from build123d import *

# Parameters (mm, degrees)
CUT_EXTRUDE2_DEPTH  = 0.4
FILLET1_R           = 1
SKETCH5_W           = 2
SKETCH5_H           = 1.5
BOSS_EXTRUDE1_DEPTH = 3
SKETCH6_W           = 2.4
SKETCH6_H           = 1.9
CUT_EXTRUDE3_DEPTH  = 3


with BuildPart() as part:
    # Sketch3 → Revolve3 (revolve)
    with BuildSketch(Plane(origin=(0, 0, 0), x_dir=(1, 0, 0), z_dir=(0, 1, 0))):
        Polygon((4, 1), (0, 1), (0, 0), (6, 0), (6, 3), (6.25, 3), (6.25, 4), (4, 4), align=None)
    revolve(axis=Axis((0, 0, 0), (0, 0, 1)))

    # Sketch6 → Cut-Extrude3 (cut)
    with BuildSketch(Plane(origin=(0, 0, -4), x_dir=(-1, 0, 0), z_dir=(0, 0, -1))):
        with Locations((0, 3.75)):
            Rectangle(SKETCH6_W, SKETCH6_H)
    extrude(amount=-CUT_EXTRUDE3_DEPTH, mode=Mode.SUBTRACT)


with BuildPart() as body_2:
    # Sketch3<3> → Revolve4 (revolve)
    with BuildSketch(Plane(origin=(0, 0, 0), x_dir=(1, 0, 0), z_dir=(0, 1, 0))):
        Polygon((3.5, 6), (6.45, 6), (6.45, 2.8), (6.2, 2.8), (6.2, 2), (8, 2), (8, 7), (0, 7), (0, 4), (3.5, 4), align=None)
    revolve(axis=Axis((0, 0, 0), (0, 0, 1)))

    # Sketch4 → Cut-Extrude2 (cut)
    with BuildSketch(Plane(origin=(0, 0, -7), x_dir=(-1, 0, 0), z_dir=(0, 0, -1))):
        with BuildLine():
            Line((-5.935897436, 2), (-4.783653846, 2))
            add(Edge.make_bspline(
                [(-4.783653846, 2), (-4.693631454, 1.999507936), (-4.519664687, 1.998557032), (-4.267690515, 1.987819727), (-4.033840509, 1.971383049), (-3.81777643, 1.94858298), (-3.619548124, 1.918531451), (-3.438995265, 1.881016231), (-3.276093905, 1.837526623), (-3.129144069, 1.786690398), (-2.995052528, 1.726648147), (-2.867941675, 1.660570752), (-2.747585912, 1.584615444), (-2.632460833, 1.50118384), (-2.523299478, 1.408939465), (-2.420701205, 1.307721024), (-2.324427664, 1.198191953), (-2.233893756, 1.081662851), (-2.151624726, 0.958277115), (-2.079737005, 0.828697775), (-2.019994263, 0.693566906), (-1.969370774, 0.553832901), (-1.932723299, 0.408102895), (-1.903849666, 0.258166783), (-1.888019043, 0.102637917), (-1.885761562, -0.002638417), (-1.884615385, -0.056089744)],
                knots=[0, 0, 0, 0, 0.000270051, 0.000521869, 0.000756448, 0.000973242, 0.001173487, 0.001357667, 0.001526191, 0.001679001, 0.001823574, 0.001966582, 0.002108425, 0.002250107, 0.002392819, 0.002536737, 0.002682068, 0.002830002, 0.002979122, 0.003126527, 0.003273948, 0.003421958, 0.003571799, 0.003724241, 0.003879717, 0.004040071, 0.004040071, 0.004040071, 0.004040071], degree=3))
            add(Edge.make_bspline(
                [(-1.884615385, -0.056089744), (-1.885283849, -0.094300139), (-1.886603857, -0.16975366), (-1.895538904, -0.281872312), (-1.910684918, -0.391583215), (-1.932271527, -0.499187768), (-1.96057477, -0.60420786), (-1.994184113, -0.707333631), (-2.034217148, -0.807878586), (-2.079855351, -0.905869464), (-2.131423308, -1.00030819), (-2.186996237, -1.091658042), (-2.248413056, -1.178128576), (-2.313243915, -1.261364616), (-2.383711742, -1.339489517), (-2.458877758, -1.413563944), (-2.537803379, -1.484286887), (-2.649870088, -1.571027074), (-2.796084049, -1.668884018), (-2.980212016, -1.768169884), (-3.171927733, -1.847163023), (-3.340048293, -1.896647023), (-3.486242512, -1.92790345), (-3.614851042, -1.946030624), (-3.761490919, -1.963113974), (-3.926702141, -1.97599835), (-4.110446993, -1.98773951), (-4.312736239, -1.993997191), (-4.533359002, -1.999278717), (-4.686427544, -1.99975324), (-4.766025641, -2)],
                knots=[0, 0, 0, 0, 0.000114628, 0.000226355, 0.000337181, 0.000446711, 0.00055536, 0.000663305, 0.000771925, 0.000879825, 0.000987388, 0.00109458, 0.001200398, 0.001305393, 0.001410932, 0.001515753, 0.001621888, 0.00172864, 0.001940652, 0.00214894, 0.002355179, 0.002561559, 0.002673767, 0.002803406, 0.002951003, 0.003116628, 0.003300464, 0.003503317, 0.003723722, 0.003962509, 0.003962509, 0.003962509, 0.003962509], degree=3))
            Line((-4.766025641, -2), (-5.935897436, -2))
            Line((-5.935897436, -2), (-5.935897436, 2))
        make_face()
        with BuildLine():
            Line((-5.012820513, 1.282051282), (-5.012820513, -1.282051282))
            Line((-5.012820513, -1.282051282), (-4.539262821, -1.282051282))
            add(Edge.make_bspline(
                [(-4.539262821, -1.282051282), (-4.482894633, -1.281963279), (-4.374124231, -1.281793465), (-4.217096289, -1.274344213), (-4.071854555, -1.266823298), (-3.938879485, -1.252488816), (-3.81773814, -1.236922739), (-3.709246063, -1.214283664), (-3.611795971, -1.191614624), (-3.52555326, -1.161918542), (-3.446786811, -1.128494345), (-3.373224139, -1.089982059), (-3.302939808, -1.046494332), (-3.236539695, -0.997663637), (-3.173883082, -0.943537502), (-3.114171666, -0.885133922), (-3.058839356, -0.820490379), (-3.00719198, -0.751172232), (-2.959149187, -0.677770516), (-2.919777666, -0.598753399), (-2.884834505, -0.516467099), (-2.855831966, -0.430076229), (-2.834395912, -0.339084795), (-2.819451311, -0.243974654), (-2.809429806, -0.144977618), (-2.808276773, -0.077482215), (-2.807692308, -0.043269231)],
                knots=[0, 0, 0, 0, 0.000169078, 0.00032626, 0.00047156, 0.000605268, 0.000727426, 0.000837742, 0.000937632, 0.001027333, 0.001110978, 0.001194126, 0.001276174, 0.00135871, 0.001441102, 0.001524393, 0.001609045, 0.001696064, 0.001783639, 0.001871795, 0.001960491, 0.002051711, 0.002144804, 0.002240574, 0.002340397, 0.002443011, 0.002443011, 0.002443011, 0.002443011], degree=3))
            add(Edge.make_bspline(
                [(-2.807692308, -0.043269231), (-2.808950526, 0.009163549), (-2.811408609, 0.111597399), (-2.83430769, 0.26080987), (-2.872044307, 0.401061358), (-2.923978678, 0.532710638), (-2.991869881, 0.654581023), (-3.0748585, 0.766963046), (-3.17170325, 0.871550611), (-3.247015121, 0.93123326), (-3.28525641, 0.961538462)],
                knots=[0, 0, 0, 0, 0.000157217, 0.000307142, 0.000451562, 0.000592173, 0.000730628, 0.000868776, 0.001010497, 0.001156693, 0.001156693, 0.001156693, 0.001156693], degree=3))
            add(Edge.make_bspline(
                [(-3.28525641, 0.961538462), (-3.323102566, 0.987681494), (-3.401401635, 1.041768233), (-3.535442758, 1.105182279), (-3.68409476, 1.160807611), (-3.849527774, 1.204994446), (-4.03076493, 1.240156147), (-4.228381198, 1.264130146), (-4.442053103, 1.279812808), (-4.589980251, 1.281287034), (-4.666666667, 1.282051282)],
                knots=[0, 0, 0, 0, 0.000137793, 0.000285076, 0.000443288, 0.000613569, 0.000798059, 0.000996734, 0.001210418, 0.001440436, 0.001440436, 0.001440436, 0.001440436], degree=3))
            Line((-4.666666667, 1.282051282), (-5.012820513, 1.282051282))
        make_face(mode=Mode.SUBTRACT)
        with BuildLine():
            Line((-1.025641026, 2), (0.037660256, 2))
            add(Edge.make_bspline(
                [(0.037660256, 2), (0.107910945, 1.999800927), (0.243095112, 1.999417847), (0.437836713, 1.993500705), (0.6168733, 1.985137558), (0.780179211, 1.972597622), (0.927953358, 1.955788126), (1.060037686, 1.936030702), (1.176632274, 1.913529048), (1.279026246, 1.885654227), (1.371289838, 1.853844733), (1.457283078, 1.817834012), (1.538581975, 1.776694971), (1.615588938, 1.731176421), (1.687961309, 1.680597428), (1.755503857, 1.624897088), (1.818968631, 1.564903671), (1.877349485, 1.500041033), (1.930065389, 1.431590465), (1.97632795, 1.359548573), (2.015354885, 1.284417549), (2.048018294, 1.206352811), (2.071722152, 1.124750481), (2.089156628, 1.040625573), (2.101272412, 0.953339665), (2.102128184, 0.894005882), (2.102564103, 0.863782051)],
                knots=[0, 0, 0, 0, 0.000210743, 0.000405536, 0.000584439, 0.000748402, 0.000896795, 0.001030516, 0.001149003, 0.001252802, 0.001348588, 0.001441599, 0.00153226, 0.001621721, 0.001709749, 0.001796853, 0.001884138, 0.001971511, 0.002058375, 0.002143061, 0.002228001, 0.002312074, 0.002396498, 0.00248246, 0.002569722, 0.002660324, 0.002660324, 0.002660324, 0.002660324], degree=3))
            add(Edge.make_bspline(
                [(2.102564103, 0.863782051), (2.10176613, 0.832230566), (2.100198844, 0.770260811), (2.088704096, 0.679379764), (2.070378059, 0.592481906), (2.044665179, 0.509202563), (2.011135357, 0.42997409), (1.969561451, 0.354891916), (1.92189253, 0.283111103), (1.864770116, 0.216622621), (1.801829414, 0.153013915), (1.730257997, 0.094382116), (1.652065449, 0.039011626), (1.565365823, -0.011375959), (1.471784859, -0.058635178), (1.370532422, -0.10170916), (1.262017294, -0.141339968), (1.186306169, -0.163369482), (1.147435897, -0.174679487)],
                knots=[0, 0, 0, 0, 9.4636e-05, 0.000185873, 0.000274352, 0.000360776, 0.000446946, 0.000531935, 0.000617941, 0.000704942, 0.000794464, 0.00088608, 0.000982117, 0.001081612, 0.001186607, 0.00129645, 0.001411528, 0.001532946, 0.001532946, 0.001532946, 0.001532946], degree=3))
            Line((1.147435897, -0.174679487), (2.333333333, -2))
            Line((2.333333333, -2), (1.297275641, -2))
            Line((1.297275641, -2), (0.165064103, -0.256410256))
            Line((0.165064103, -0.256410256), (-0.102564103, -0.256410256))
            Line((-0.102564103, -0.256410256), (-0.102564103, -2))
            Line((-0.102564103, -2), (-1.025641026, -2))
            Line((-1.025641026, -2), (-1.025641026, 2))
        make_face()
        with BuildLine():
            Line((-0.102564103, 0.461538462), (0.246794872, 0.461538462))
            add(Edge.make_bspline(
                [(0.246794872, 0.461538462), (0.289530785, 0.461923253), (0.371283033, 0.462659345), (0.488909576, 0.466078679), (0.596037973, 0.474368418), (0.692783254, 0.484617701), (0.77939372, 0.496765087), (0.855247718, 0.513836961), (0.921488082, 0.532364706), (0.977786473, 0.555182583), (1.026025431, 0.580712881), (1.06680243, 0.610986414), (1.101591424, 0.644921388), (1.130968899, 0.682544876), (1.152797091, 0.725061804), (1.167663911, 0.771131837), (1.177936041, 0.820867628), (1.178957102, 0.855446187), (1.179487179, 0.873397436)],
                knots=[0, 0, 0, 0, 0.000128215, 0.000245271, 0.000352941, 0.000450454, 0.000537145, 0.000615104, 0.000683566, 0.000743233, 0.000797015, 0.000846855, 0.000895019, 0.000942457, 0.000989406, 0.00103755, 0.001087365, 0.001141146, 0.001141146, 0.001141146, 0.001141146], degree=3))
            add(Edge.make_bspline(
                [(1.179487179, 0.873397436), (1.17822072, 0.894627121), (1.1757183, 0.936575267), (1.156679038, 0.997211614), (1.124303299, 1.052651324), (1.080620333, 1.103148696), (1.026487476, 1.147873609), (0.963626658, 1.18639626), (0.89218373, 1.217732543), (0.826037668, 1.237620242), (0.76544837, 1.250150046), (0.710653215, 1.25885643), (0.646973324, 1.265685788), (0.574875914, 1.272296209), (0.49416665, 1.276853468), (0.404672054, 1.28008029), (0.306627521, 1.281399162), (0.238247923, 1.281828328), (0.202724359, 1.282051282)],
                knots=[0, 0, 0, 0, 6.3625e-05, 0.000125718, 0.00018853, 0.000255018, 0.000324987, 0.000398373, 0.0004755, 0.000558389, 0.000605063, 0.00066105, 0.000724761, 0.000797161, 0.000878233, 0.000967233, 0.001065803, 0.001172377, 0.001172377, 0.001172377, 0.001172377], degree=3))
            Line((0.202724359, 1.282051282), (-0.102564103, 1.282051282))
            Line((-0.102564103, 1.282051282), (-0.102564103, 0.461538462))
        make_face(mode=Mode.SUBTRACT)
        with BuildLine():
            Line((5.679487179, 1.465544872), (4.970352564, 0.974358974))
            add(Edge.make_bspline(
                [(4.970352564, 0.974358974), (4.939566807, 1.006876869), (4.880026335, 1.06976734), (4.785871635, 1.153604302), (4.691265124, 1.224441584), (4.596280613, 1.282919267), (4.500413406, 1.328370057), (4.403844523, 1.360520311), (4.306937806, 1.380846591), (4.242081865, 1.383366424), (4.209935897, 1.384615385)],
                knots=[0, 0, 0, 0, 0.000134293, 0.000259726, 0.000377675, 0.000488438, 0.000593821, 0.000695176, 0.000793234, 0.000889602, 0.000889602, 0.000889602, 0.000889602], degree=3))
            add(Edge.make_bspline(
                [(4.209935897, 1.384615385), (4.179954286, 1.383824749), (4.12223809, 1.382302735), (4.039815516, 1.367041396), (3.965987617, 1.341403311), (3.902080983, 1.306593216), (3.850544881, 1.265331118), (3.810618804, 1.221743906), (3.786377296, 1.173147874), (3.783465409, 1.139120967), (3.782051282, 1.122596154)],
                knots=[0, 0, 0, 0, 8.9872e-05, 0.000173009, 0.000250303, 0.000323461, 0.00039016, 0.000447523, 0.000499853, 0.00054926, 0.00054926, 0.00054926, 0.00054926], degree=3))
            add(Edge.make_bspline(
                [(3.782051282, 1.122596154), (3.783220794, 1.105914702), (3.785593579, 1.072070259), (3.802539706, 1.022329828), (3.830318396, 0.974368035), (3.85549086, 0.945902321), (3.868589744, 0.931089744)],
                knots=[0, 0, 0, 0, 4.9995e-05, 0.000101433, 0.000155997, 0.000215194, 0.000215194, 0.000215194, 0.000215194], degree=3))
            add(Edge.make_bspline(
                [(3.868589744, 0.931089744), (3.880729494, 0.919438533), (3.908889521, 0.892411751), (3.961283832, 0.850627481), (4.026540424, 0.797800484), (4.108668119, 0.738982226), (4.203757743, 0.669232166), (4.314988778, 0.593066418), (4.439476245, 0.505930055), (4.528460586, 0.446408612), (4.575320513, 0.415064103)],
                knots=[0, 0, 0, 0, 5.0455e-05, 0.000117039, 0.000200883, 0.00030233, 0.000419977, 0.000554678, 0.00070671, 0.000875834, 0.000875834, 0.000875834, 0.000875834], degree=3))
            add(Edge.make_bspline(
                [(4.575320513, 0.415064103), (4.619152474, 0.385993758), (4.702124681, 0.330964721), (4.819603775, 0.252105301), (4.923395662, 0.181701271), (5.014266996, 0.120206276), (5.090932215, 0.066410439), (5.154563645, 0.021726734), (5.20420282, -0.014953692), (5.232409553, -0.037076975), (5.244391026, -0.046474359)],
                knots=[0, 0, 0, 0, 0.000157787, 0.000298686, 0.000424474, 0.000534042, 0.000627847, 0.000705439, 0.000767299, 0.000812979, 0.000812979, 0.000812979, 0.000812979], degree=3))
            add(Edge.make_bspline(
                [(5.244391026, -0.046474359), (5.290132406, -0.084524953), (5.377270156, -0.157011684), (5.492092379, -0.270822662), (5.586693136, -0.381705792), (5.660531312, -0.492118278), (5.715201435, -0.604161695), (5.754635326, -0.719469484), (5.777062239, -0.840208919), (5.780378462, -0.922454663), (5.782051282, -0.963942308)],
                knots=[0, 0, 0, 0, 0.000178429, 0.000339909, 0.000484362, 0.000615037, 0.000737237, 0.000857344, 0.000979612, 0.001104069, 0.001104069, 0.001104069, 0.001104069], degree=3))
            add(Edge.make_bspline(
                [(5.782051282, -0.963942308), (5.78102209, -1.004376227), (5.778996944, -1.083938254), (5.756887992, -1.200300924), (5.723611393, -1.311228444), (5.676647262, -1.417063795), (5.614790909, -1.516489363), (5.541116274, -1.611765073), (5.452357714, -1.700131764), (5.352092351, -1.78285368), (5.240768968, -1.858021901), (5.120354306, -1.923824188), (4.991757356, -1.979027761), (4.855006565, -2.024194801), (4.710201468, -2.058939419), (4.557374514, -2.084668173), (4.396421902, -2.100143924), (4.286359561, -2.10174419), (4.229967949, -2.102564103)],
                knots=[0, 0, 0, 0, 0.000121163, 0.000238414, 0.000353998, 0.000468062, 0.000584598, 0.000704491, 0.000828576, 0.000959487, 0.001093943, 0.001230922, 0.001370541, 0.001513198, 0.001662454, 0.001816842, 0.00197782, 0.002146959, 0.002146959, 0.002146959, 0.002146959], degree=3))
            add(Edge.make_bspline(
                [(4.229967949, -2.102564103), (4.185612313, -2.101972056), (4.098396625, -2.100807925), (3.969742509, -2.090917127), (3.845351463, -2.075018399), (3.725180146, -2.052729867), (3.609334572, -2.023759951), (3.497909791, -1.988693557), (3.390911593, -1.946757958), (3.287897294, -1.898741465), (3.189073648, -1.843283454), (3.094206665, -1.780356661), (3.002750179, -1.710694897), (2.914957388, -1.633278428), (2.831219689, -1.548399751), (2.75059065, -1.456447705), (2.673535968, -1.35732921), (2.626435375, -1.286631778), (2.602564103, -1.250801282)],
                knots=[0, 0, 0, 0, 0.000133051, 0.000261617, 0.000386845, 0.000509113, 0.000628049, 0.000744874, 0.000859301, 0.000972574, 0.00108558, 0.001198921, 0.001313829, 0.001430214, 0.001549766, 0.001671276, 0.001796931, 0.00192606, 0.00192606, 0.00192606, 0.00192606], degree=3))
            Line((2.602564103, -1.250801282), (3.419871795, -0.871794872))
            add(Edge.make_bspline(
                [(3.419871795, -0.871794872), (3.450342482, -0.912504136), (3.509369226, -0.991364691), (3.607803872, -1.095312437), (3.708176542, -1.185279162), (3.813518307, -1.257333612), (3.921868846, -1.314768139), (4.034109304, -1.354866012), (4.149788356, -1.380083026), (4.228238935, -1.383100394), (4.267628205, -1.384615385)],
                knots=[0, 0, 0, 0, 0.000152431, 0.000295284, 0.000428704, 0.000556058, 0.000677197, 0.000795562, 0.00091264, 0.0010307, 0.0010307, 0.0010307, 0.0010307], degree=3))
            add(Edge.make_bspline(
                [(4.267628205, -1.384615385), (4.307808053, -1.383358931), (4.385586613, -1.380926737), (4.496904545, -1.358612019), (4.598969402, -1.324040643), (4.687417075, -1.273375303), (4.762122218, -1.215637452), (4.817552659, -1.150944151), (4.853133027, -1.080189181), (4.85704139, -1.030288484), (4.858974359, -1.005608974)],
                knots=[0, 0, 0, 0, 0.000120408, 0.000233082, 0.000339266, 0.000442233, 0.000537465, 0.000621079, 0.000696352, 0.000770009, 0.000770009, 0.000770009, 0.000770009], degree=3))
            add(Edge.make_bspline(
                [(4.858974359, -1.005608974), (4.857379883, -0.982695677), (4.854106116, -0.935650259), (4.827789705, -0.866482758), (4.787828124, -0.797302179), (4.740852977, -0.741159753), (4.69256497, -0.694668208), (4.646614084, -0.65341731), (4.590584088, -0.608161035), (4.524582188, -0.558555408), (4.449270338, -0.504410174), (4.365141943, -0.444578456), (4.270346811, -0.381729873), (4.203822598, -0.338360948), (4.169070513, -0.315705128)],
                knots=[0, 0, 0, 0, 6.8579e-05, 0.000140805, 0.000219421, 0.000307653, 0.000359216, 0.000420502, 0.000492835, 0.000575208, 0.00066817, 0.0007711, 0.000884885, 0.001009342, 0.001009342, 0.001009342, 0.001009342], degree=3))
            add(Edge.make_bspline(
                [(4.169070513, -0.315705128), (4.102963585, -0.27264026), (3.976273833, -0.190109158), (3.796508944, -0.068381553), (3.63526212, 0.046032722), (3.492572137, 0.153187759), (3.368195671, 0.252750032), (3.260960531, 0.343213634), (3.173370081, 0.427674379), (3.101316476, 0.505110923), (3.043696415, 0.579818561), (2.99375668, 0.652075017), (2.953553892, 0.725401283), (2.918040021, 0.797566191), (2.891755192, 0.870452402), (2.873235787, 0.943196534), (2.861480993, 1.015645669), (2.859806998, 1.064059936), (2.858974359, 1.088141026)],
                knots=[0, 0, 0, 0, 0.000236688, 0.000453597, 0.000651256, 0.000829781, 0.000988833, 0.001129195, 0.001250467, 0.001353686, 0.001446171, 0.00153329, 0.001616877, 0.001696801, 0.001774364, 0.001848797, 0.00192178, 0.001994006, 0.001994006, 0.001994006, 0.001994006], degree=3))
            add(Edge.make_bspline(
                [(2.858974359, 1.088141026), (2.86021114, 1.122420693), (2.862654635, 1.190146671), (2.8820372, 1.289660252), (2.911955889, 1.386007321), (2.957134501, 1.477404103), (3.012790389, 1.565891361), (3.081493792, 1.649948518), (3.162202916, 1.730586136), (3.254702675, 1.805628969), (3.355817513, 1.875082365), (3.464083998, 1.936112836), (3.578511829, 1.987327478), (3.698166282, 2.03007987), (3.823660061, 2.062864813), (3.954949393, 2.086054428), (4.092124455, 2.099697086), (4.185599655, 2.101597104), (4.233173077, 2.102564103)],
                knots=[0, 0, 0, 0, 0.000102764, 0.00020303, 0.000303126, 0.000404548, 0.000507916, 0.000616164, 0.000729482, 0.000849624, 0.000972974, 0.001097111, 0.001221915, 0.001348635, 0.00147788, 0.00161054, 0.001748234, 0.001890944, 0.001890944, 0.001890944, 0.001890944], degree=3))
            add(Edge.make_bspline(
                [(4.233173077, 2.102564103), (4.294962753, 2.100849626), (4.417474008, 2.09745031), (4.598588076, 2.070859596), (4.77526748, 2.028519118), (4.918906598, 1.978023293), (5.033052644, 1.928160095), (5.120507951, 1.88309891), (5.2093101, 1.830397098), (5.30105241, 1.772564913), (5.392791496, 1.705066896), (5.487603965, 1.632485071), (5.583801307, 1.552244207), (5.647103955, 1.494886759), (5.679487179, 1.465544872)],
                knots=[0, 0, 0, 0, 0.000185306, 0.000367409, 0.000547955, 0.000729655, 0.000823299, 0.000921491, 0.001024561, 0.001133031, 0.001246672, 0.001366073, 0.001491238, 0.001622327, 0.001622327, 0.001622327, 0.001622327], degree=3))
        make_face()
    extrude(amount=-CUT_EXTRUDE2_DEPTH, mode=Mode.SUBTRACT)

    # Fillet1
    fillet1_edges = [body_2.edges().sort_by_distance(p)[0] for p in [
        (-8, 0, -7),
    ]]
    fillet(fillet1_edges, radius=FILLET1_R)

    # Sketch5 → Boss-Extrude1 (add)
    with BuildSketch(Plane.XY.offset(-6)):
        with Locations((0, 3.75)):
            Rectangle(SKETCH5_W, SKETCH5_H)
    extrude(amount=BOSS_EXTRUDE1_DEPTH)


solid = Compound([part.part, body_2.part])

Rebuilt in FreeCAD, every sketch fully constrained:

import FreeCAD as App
import Part
import Sketcher
Q = App.Units.Quantity


def edges_at(feature, points):
    """Names of the edges that pass closest to the given points."""
    edges = feature.Shape.Edges
    near = lambda p: min(range(len(edges)), key=lambda i: edges[i].distToShape(Part.Vertex(*p))[0])
    return sorted({f"Edge{near(p) + 1}" for p in points})


def add_polygon(sketch, points):
    """Adds a closed chain of lines whose ends are joined by coincident constraints."""
    first, n = sketch.GeometryCount, len(points)
    for a, b in zip(points, points[1:] + points[:1]):
        sketch.addGeometry(Part.LineSegment(App.Vector(*a, 0), App.Vector(*b, 0)), False)
    for i in range(n):
        sketch.addConstraint(Sketcher.Constraint("Coincident", first + i, 2, first + (i + 1) % n, 1))

doc = App.newDocument("Part")
body = doc.addObject("PartDesign::Body", "Body")

sketch1 = body.newObject("Sketcher::SketchObject", "Sketch")
sketch1.AttachmentSupport = (doc.getObject("XZ_Plane"), [""])
sketch1.MapMode = "FlatFace"
add_polygon(sketch1, [(4, -1), (0, -1), (0, 0), (6, 0), (6, -3), (6.25, -3), (6.25, -4), (4, -4)])
sketch1.addConstraint([
    Sketcher.Constraint("Horizontal", 0),
    Sketcher.Constraint("Vertical", 1),
    Sketcher.Constraint("Horizontal", 2),
    Sketcher.Constraint("Vertical", 3),
    Sketcher.Constraint("Horizontal", 4),
    Sketcher.Constraint("Vertical", 5),
    Sketcher.Constraint("Horizontal", 6),
    Sketcher.Constraint("Vertical", 7),
    Sketcher.Constraint("Coincident", 1, 2, -1, 1),
    Sketcher.Constraint("Equal", 1, 5),
    Sketcher.Constraint("DistanceX", 0, 2, 0, 1, Q("4 mm")),
    Sketcher.Constraint("DistanceX", 2, 1, 2, 2, Q("6 mm")),
    Sketcher.Constraint("DistanceY", 1, 1, 1, 2, Q("1 mm")),
    Sketcher.Constraint("DistanceY", 3, 2, 3, 1, Q("3 mm")),
    Sketcher.Constraint("DistanceX", 4, 1, 4, 2, Q("0.25 mm")),
])
revolution = body.newObject("PartDesign::Revolution", "Revolution")
revolution.Profile = sketch1
revolution.ReferenceAxis = (sketch1, ["V_Axis"])
revolution.Angle = 360

sketch2 = body.newObject("Sketcher::SketchObject", "Sketch001")
sketch2.AttachmentSupport = (doc.getObject("XY_Plane"), [""])
sketch2.MapMode = "FlatFace"
sketch2.AttachmentOffset = App.Placement(App.Vector(0, 0, -4), App.Rotation())
add_polygon(sketch2, [(1.2, 4.7), (1.2, 2.8), (-1.2, 2.8), (-1.2, 4.7)])
sketch2.addConstraint([
    Sketcher.Constraint("Vertical", 0),
    Sketcher.Constraint("Horizontal", 1),
    Sketcher.Constraint("Vertical", 2),
    Sketcher.Constraint("Horizontal", 3),
    Sketcher.Constraint("DistanceX", 1, 2, 1, 1, Q("2.4 mm")),
    Sketcher.Constraint("DistanceY", 0, 2, 0, 1, Q("1.9 mm")),
    Sketcher.Constraint("DistanceX", -1, 1, 0, 2, Q("1.2 mm")),
    Sketcher.Constraint("DistanceY", -1, 1, 0, 2, Q("2.8 mm")),
])
pocket1 = body.newObject("PartDesign::Pocket", "Pocket")
pocket1.Profile = sketch2
pocket1.Length = 3
pocket1.Reversed = True
body2 = doc.addObject("PartDesign::Body", "Body001")

sketch3 = body2.newObject("Sketcher::SketchObject", "Sketch002")
sketch3.AttachmentSupport = (doc.getObject("XZ_Plane001"), [""])
sketch3.MapMode = "FlatFace"
add_polygon(sketch3, [(3.5, -6), (6.45, -6), (6.45, -2.8), (6.2, -2.8), (6.2, -2), (8, -2), (8, -7), (0, -7), (0, -4), (3.5, -4)])
sketch3.addConstraint([
    Sketcher.Constraint("Horizontal", 0),
    Sketcher.Constraint("Vertical", 1),
    Sketcher.Constraint("Horizontal", 2),
    Sketcher.Constraint("Vertical", 3),
    Sketcher.Constraint("Horizontal", 4),
    Sketcher.Constraint("Vertical", 5),
    Sketcher.Constraint("Horizontal", 6),
    Sketcher.Constraint("Vertical", 7),
    Sketcher.Constraint("Horizontal", 8),
    Sketcher.Constraint("Vertical", 9),
    Sketcher.Constraint("PointOnObject", 6, 2, -2),
    Sketcher.Constraint("DistanceX", 6, 2, 6, 1, Q("8 mm")),
    Sketcher.Constraint("DistanceY", 5, 2, 5, 1, Q("5 mm")),
    Sketcher.Constraint("DistanceY", 7, 1, 7, 2, Q("3 mm")),
    Sketcher.Constraint("DistanceY", 9, 2, 9, 1, Q("2 mm")),
    Sketcher.Constraint("DistanceX", 4, 1, 4, 2, Q("1.8 mm")),
    Sketcher.Constraint("DistanceX", 8, 1, 8, 2, Q("3.5 mm")),
    Sketcher.Constraint("DistanceY", 1, 1, 1, 2, Q("3.2 mm")),
    Sketcher.Constraint("DistanceY", 0, 2, -1, 1, Q("6 mm")),
    Sketcher.Constraint("DistanceX", 0, 1, 0, 2, Q("2.95 mm")),
])
revolution2 = body2.newObject("PartDesign::Revolution", "Revolution001")
revolution2.Profile = sketch3
revolution2.ReferenceAxis = (sketch3, ["V_Axis"])
revolution2.Angle = 360

sketch4 = body2.newObject("Sketcher::SketchObject", "Sketch003")
sketch4.AttachmentSupport = (doc.getObject("XY_Plane001"), [""])
sketch4.MapMode = "FlatFace"
sketch4.AttachmentOffset = App.Placement(App.Vector(0, 0, -7), App.Rotation())
sketch4.addGeometry([
    Part.LineSegment(App.Vector(4.783654, 2, 0), App.Vector(5.935897, 2, 0)),
    Part.LineSegment(App.Vector(5.935897, 2, 0), App.Vector(5.935897, -2, 0)),
    Part.LineSegment(App.Vector(5.935897, -2, 0), App.Vector(4.766026, -2, 0)),
    Part.BSplineCurve([App.Vector(1.884615, -0.05609, 0), App.Vector(1.885284, -0.0943, 0), App.Vector(1.886604, -0.169754, 0), App.Vector(1.895539, -0.281872, 0), App.Vector(1.910685, -0.391583, 0), App.Vector(1.932272, -0.499188, 0), App.Vector(1.960575, -0.604208, 0), App.Vector(1.994184, -0.707334, 0), App.Vector(2.034217, -0.807879, 0), App.Vector(2.079855, -0.905869, 0), App.Vector(2.131423, -1.000308, 0), App.Vector(2.186996, -1.091658, 0), App.Vector(2.248413, -1.178129, 0), App.Vector(2.313244, -1.261365, 0), App.Vector(2.383712, -1.33949, 0), App.Vector(2.458878, -1.413564, 0), App.Vector(2.537803, -1.484287, 0), App.Vector(2.64987, -1.571027, 0), App.Vector(2.796084, -1.668884, 0), App.Vector(2.980212, -1.76817, 0), App.Vector(3.171928, -1.847163, 0), App.Vector(3.340048, -1.896647, 0), App.Vector(3.486243, -1.927903, 0), App.Vector(3.614851, -1.946031, 0), App.Vector(3.761491, -1.963114, 0), App.Vector(3.926702, -1.975998, 0), App.Vector(4.110447, -1.98774, 0), App.Vector(4.312736, -1.993997, 0), App.Vector(4.533359, -1.999279, 0), App.Vector(4.686428, -1.999753, 0), App.Vector(4.766026, -2, 0)], [4, 1, 1, 1, 1, 1, 1, 1, 1, 1, 1, 1, 1, 1, 1, 1, 1, 1, 1, 1, 1, 1, 1, 1, 1, 1, 1, 1, 4], [0, 0.000114628, 0.000226355, 0.000337181, 0.000446711, 0.00055536, 0.000663305, 0.000771925, 0.000879825, 0.000987388, 0.00109458, 0.001200398, 0.001305393, 0.001410932, 0.001515753, 0.001621888, 0.00172864, 0.001940652, 0.00214894, 0.002355179, 0.002561559, 0.002673767, 0.002803406, 0.002951003, 0.003116628, 0.003300464, 0.003503317, 0.003723722, 0.003962509], False, 3, [1, 1, 1, 1, 1, 1, 1, 1, 1, 1, 1, 1, 1, 1, 1, 1, 1, 1, 1, 1, 1, 1, 1, 1, 1, 1, 1, 1, 1, 1, 1], False),
    Part.BSplineCurve([App.Vector(4.783654, 2, 0), App.Vector(4.693631, 1.999508, 0), App.Vector(4.519665, 1.998557, 0), App.Vector(4.267691, 1.98782, 0), App.Vector(4.033841, 1.971383, 0), App.Vector(3.817776, 1.948583, 0), App.Vector(3.619548, 1.918531, 0), App.Vector(3.438995, 1.881016, 0), App.Vector(3.276094, 1.837527, 0), App.Vector(3.129144, 1.78669, 0), App.Vector(2.995053, 1.726648, 0), App.Vector(2.867942, 1.660571, 0), App.Vector(2.747586, 1.584615, 0), App.Vector(2.632461, 1.501184, 0), App.Vector(2.523299, 1.408939, 0), App.Vector(2.420701, 1.307721, 0), App.Vector(2.324428, 1.198192, 0), App.Vector(2.233894, 1.081663, 0), App.Vector(2.151625, 0.958277, 0), App.Vector(2.079737, 0.828698, 0), App.Vector(2.019994, 0.693567, 0), App.Vector(1.969371, 0.553833, 0), App.Vector(1.932723, 0.408103, 0), App.Vector(1.90385, 0.258167, 0), App.Vector(1.888019, 0.102638, 0), App.Vector(1.885762, -0.002638, 0), App.Vector(1.884615, -0.05609, 0)], [4, 1, 1, 1, 1, 1, 1, 1, 1, 1, 1, 1, 1, 1, 1, 1, 1, 1, 1, 1, 1, 1, 1, 1, 4], [0, 0.000270051, 0.000521869, 0.000756448, 0.000973242, 0.001173487, 0.001357667, 0.001526191, 0.001679001, 0.001823574, 0.001966582, 0.002108425, 0.002250107, 0.002392819, 0.002536737, 0.002682068, 0.002830002, 0.002979122, 0.003126527, 0.003273948, 0.003421958, 0.003571799, 0.003724241, 0.003879717, 0.004040071], False, 3, [1, 1, 1, 1, 1, 1, 1, 1, 1, 1, 1, 1, 1, 1, 1, 1, 1, 1, 1, 1, 1, 1, 1, 1, 1, 1, 1], False),
    Part.LineSegment(App.Vector(5.012821, 1.282051, 0), App.Vector(4.666667, 1.282051, 0)),
    Part.BSplineCurve([App.Vector(3.285256, 0.961538, 0), App.Vector(3.323103, 0.987681, 0), App.Vector(3.401402, 1.041768, 0), App.Vector(3.535443, 1.105182, 0), App.Vector(3.684095, 1.160808, 0), App.Vector(3.849528, 1.204994, 0), App.Vector(4.030765, 1.240156, 0), App.Vector(4.228381, 1.26413, 0), App.Vector(4.442053, 1.279813, 0), App.Vector(4.58998, 1.281287, 0), App.Vector(4.666667, 1.282051, 0)], [4, 1, 1, 1, 1, 1, 1, 1, 4], [0, 0.000137793, 0.000285076, 0.000443288, 0.000613569, 0.000798059, 0.000996734, 0.001210418, 0.001440436], False, 3, [1, 1, 1, 1, 1, 1, 1, 1, 1, 1, 1], False),
    Part.BSplineCurve([App.Vector(2.807692, -0.043269, 0), App.Vector(2.808951, 0.009164, 0), App.Vector(2.811409, 0.111597, 0), App.Vector(2.834308, 0.26081, 0), App.Vector(2.872044, 0.401061, 0), App.Vector(2.923979, 0.532711, 0), App.Vector(2.99187, 0.654581, 0), App.Vector(3.074858, 0.766963, 0), App.Vector(3.171703, 0.871551, 0), App.Vector(3.247015, 0.931233, 0), App.Vector(3.285256, 0.961538, 0)], [4, 1, 1, 1, 1, 1, 1, 1, 4], [0, 0.000157217, 0.000307142, 0.000451562, 0.000592173, 0.000730628, 0.000868776, 0.001010497, 0.001156693], False, 3, [1, 1, 1, 1, 1, 1, 1, 1, 1, 1, 1], False),
    Part.BSplineCurve([App.Vector(4.539263, -1.282051, 0), App.Vector(4.482895, -1.281963, 0), App.Vector(4.374124, -1.281793, 0), App.Vector(4.217096, -1.274344, 0), App.Vector(4.071855, -1.266823, 0), App.Vector(3.938879, -1.252489, 0), App.Vector(3.817738, -1.236923, 0), App.Vector(3.709246, -1.214284, 0), App.Vector(3.611796, -1.191615, 0), App.Vector(3.525553, -1.161919, 0), App.Vector(3.446787, -1.128494, 0), App.Vector(3.373224, -1.089982, 0), App.Vector(3.30294, -1.046494, 0), App.Vector(3.23654, -0.997664, 0), App.Vector(3.173883, -0.943538, 0), App.Vector(3.114172, -0.885134, 0), App.Vector(3.058839, -0.82049, 0), App.Vector(3.007192, -0.751172, 0), App.Vector(2.959149, -0.677771, 0), App.Vector(2.919778, -0.598753, 0), App.Vector(2.884835, -0.516467, 0), App.Vector(2.855832, -0.430076, 0), App.Vector(2.834396, -0.339085, 0), App.Vector(2.819451, -0.243975, 0), App.Vector(2.80943, -0.144978, 0), App.Vector(2.808277, -0.077482, 0), App.Vector(2.807692, -0.043269, 0)], [4, 1, 1, 1, 1, 1, 1, 1, 1, 1, 1, 1, 1, 1, 1, 1, 1, 1, 1, 1, 1, 1, 1, 1, 4], [0, 0.000169078, 0.00032626, 0.00047156, 0.000605268, 0.000727426, 0.000837742, 0.000937632, 0.001027333, 0.001110978, 0.001194126, 0.001276174, 0.00135871, 0.001441102, 0.001524393, 0.001609045, 0.001696064, 0.001783639, 0.001871795, 0.001960491, 0.002051711, 0.002144804, 0.002240574, 0.002340397, 0.002443011], False, 3, [1, 1, 1, 1, 1, 1, 1, 1, 1, 1, 1, 1, 1, 1, 1, 1, 1, 1, 1, 1, 1, 1, 1, 1, 1, 1, 1], False),
    Part.LineSegment(App.Vector(4.539263, -1.282051, 0), App.Vector(5.012821, -1.282051, 0)),
    Part.LineSegment(App.Vector(5.012821, -1.282051, 0), App.Vector(5.012821, 1.282051, 0)),
    Part.LineSegment(App.Vector(-0.03766, 2, 0), App.Vector(1.025641, 2, 0)),
    Part.LineSegment(App.Vector(1.025641, 2, 0), App.Vector(1.025641, -2, 0)),
    Part.LineSegment(App.Vector(1.025641, -2, 0), App.Vector(0.102564, -2, 0)),
    Part.LineSegment(App.Vector(0.102564, -2, 0), App.Vector(0.102564, -0.25641, 0)),
    Part.LineSegment(App.Vector(0.102564, -0.25641, 0), App.Vector(-0.165064, -0.25641, 0)),
    Part.LineSegment(App.Vector(-0.165064, -0.25641, 0), App.Vector(-1.297276, -2, 0)),
    Part.LineSegment(App.Vector(-1.297276, -2, 0), App.Vector(-2.333333, -2, 0)),
    Part.LineSegment(App.Vector(-2.333333, -2, 0), App.Vector(-1.147436, -0.174679, 0)),
    Part.BSplineCurve([App.Vector(-2.102564, 0.863782, 0), App.Vector(-2.101766, 0.832231, 0), App.Vector(-2.100199, 0.770261, 0), App.Vector(-2.088704, 0.67938, 0), App.Vector(-2.070378, 0.592482, 0), App.Vector(-2.044665, 0.509203, 0), App.Vector(-2.011135, 0.429974, 0), App.Vector(-1.969561, 0.354892, 0), App.Vector(-1.921893, 0.283111, 0), App.Vector(-1.86477, 0.216623, 0), App.Vector(-1.801829, 0.153014, 0), App.Vector(-1.730258, 0.094382, 0), App.Vector(-1.652065, 0.039012, 0), App.Vector(-1.565366, -0.011376, 0), App.Vector(-1.471785, -0.058635, 0), App.Vector(-1.370532, -0.101709, 0), App.Vector(-1.262017, -0.14134, 0), App.Vector(-1.186306, -0.163369, 0), App.Vector(-1.147436, -0.174679, 0)], [4, 1, 1, 1, 1, 1, 1, 1, 1, 1, 1, 1, 1, 1, 1, 1, 4], [0, 0.000094636, 0.000185873, 0.000274352, 0.000360776, 0.000446946, 0.000531935, 0.000617941, 0.000704942, 0.000794464, 0.00088608, 0.000982117, 0.001081612, 0.001186607, 0.00129645, 0.001411528, 0.001532946], False, 3, [1, 1, 1, 1, 1, 1, 1, 1, 1, 1, 1, 1, 1, 1, 1, 1, 1, 1, 1], False),
    Part.BSplineCurve([App.Vector(-0.03766, 2, 0), App.Vector(-0.107911, 1.999801, 0), App.Vector(-0.243095, 1.999418, 0), App.Vector(-0.437837, 1.993501, 0), App.Vector(-0.616873, 1.985138, 0), App.Vector(-0.780179, 1.972598, 0), App.Vector(-0.927953, 1.955788, 0), App.Vector(-1.060038, 1.936031, 0), App.Vector(-1.176632, 1.913529, 0), App.Vector(-1.279026, 1.885654, 0), App.Vector(-1.37129, 1.853845, 0), App.Vector(-1.457283, 1.817834, 0), App.Vector(-1.538582, 1.776695, 0), App.Vector(-1.615589, 1.731176, 0), App.Vector(-1.687961, 1.680597, 0), App.Vector(-1.755504, 1.624897, 0), App.Vector(-1.818969, 1.564904, 0), App.Vector(-1.877349, 1.500041, 0), App.Vector(-1.930065, 1.43159, 0), App.Vector(-1.976328, 1.359549, 0), App.Vector(-2.015355, 1.284418, 0), App.Vector(-2.048018, 1.206353, 0), App.Vector(-2.071722, 1.12475, 0), App.Vector(-2.089157, 1.040626, 0), App.Vector(-2.101272, 0.95334, 0), App.Vector(-2.102128, 0.894006, 0), App.Vector(-2.102564, 0.863782, 0)], [4, 1, 1, 1, 1, 1, 1, 1, 1, 1, 1, 1, 1, 1, 1, 1, 1, 1, 1, 1, 1, 1, 1, 1, 4], [0, 0.000210743, 0.000405536, 0.000584439, 0.000748402, 0.000896795, 0.001030516, 0.001149003, 0.001252802, 0.001348588, 0.001441599, 0.00153226, 0.001621721, 0.001709749, 0.001796853, 0.001884138, 0.001971511, 0.002058375, 0.002143061, 0.002228001, 0.002312074, 0.002396498, 0.00248246, 0.002569722, 0.002660324], False, 3, [1, 1, 1, 1, 1, 1, 1, 1, 1, 1, 1, 1, 1, 1, 1, 1, 1, 1, 1, 1, 1, 1, 1, 1, 1, 1, 1], False),
    Part.LineSegment(App.Vector(0.102564, 0.461538, 0), App.Vector(0.102564, 1.282051, 0)),
    Part.LineSegment(App.Vector(0.102564, 1.282051, 0), App.Vector(-0.202724, 1.282051, 0)),
    Part.BSplineCurve([App.Vector(-1.179487, 0.873397, 0), App.Vector(-1.178221, 0.894627, 0), App.Vector(-1.175718, 0.936575, 0), App.Vector(-1.156679, 0.997212, 0), App.Vector(-1.124303, 1.052651, 0), App.Vector(-1.08062, 1.103149, 0), App.Vector(-1.026487, 1.147874, 0), App.Vector(-0.963627, 1.186396, 0), App.Vector(-0.892184, 1.217733, 0), App.Vector(-0.826038, 1.23762, 0), App.Vector(-0.765448, 1.25015, 0), App.Vector(-0.710653, 1.258856, 0), App.Vector(-0.646973, 1.265686, 0), App.Vector(-0.574876, 1.272296, 0), App.Vector(-0.494167, 1.276853, 0), App.Vector(-0.404672, 1.28008, 0), App.Vector(-0.306628, 1.281399, 0), App.Vector(-0.238248, 1.281828, 0), App.Vector(-0.202724, 1.282051, 0)], [4, 1, 1, 1, 1, 1, 1, 1, 1, 1, 1, 1, 1, 1, 1, 1, 4], [0, 0.000063625, 0.000125718, 0.00018853, 0.000255018, 0.000324987, 0.000398373, 0.0004755, 0.000558389, 0.000605063, 0.00066105, 0.000724761, 0.000797161, 0.000878233, 0.000967233, 0.001065803, 0.001172377], False, 3, [1, 1, 1, 1, 1, 1, 1, 1, 1, 1, 1, 1, 1, 1, 1, 1, 1, 1, 1], False),
    Part.BSplineCurve([App.Vector(-0.246795, 0.461538, 0), App.Vector(-0.289531, 0.461923, 0), App.Vector(-0.371283, 0.462659, 0), App.Vector(-0.48891, 0.466079, 0), App.Vector(-0.596038, 0.474368, 0), App.Vector(-0.692783, 0.484618, 0), App.Vector(-0.779394, 0.496765, 0), App.Vector(-0.855248, 0.513837, 0), App.Vector(-0.921488, 0.532365, 0), App.Vector(-0.977786, 0.555183, 0), App.Vector(-1.026025, 0.580713, 0), App.Vector(-1.066802, 0.610986, 0), App.Vector(-1.101591, 0.644921, 0), App.Vector(-1.130969, 0.682545, 0), App.Vector(-1.152797, 0.725062, 0), App.Vector(-1.167664, 0.771132, 0), App.Vector(-1.177936, 0.820868, 0), App.Vector(-1.178957, 0.855446, 0), App.Vector(-1.179487, 0.873397, 0)], [4, 1, 1, 1, 1, 1, 1, 1, 1, 1, 1, 1, 1, 1, 1, 1, 4], [0, 0.000128215, 0.000245271, 0.000352941, 0.000450454, 0.000537145, 0.000615104, 0.000683566, 0.000743233, 0.000797015, 0.000846855, 0.000895019, 0.000942457, 0.000989406, 0.00103755, 0.001087365, 0.001141146], False, 3, [1, 1, 1, 1, 1, 1, 1, 1, 1, 1, 1, 1, 1, 1, 1, 1, 1, 1, 1], False),
    Part.LineSegment(App.Vector(-0.246795, 0.461538, 0), App.Vector(0.102564, 0.461538, 0)),
    Part.LineSegment(App.Vector(-4.970353, 0.974359, 0), App.Vector(-5.679487, 1.465545, 0)),
    Part.BSplineCurve([App.Vector(-4.233173, 2.102564, 0), App.Vector(-4.294963, 2.10085, 0), App.Vector(-4.417474, 2.09745, 0), App.Vector(-4.598588, 2.07086, 0), App.Vector(-4.775267, 2.028519, 0), App.Vector(-4.918907, 1.978023, 0), App.Vector(-5.033053, 1.92816, 0), App.Vector(-5.120508, 1.883099, 0), App.Vector(-5.20931, 1.830397, 0), App.Vector(-5.301052, 1.772565, 0), App.Vector(-5.392791, 1.705067, 0), App.Vector(-5.487604, 1.632485, 0), App.Vector(-5.583801, 1.552244, 0), App.Vector(-5.647104, 1.494887, 0), App.Vector(-5.679487, 1.465545, 0)], [4, 1, 1, 1, 1, 1, 1, 1, 1, 1, 1, 1, 4], [0, 0.000185306, 0.000367409, 0.000547955, 0.000729655, 0.000823299, 0.000921491, 0.001024561, 0.001133031, 0.001246672, 0.001366073, 0.001491238, 0.001622327], False, 3, [1, 1, 1, 1, 1, 1, 1, 1, 1, 1, 1, 1, 1, 1, 1], False),
    Part.BSplineCurve([App.Vector(-2.858974, 1.088141, 0), App.Vector(-2.860211, 1.122421, 0), App.Vector(-2.862655, 1.190147, 0), App.Vector(-2.882037, 1.28966, 0), App.Vector(-2.911956, 1.386007, 0), App.Vector(-2.957135, 1.477404, 0), App.Vector(-3.01279, 1.565891, 0), App.Vector(-3.081494, 1.649949, 0), App.Vector(-3.162203, 1.730586, 0), App.Vector(-3.254703, 1.805629, 0), App.Vector(-3.355818, 1.875082, 0), App.Vector(-3.464084, 1.936113, 0), App.Vector(-3.578512, 1.987327, 0), App.Vector(-3.698166, 2.03008, 0), App.Vector(-3.82366, 2.062865, 0), App.Vector(-3.954949, 2.086054, 0), App.Vector(-4.092124, 2.099697, 0), App.Vector(-4.1856, 2.101597, 0), App.Vector(-4.233173, 2.102564, 0)], [4, 1, 1, 1, 1, 1, 1, 1, 1, 1, 1, 1, 1, 1, 1, 1, 4], [0, 0.000102764, 0.00020303, 0.000303126, 0.000404548, 0.000507916, 0.000616164, 0.000729482, 0.000849624, 0.000972974, 0.001097111, 0.001221915, 0.001348635, 0.00147788, 0.00161054, 0.001748234, 0.001890944], False, 3, [1, 1, 1, 1, 1, 1, 1, 1, 1, 1, 1, 1, 1, 1, 1, 1, 1, 1, 1], False),
    Part.BSplineCurve([App.Vector(-4.169071, -0.315705, 0), App.Vector(-4.102964, -0.27264, 0), App.Vector(-3.976274, -0.190109, 0), App.Vector(-3.796509, -0.068382, 0), App.Vector(-3.635262, 0.046033, 0), App.Vector(-3.492572, 0.153188, 0), App.Vector(-3.368196, 0.25275, 0), App.Vector(-3.260961, 0.343214, 0), App.Vector(-3.17337, 0.427674, 0), App.Vector(-3.101316, 0.505111, 0), App.Vector(-3.043696, 0.579819, 0), App.Vector(-2.993757, 0.652075, 0), App.Vector(-2.953554, 0.725401, 0), App.Vector(-2.91804, 0.797566, 0), App.Vector(-2.891755, 0.870452, 0), App.Vector(-2.873236, 0.943197, 0), App.Vector(-2.861481, 1.015646, 0), App.Vector(-2.859807, 1.06406, 0), App.Vector(-2.858974, 1.088141, 0)], [4, 1, 1, 1, 1, 1, 1, 1, 1, 1, 1, 1, 1, 1, 1, 1, 4], [0, 0.000236688, 0.000453597, 0.000651256, 0.000829781, 0.000988833, 0.001129195, 0.001250467, 0.001353686, 0.001446171, 0.00153329, 0.001616877, 0.001696801, 0.001774364, 0.001848797, 0.00192178, 0.001994006], False, 3, [1, 1, 1, 1, 1, 1, 1, 1, 1, 1, 1, 1, 1, 1, 1, 1, 1, 1, 1], False),
    Part.BSplineCurve([App.Vector(-4.858974, -1.005609, 0), App.Vector(-4.85738, -0.982696, 0), App.Vector(-4.854106, -0.93565, 0), App.Vector(-4.82779, -0.866483, 0), App.Vector(-4.787828, -0.797302, 0), App.Vector(-4.740853, -0.74116, 0), App.Vector(-4.692565, -0.694668, 0), App.Vector(-4.646614, -0.653417, 0), App.Vector(-4.590584, -0.608161, 0), App.Vector(-4.524582, -0.558555, 0), App.Vector(-4.44927, -0.50441, 0), App.Vector(-4.365142, -0.444578, 0), App.Vector(-4.270347, -0.38173, 0), App.Vector(-4.203823, -0.338361, 0), App.Vector(-4.169071, -0.315705, 0)], [4, 1, 1, 1, 1, 1, 1, 1, 1, 1, 1, 1, 4], [0, 0.000068579, 0.000140805, 0.000219421, 0.000307653, 0.000359216, 0.000420502, 0.000492835, 0.000575208, 0.00066817, 0.0007711, 0.000884885, 0.001009342], False, 3, [1, 1, 1, 1, 1, 1, 1, 1, 1, 1, 1, 1, 1, 1, 1], False),
    Part.BSplineCurve([App.Vector(-4.267628, -1.384615, 0), App.Vector(-4.307808, -1.383359, 0), App.Vector(-4.385587, -1.380927, 0), App.Vector(-4.496905, -1.358612, 0), App.Vector(-4.598969, -1.324041, 0), App.Vector(-4.687417, -1.273375, 0), App.Vector(-4.762122, -1.215637, 0), App.Vector(-4.817553, -1.150944, 0), App.Vector(-4.853133, -1.080189, 0), App.Vector(-4.857041, -1.030288, 0), App.Vector(-4.858974, -1.005609, 0)], [4, 1, 1, 1, 1, 1, 1, 1, 4], [0, 0.000120408, 0.000233082, 0.000339266, 0.000442233, 0.000537465, 0.000621079, 0.000696352, 0.000770009], False, 3, [1, 1, 1, 1, 1, 1, 1, 1, 1, 1, 1], False),
    Part.BSplineCurve([App.Vector(-3.419872, -0.871795, 0), App.Vector(-3.450342, -0.912504, 0), App.Vector(-3.509369, -0.991365, 0), App.Vector(-3.607804, -1.095312, 0), App.Vector(-3.708177, -1.185279, 0), App.Vector(-3.813518, -1.257334, 0), App.Vector(-3.921869, -1.314768, 0), App.Vector(-4.034109, -1.354866, 0), App.Vector(-4.149788, -1.380083, 0), App.Vector(-4.228239, -1.3831, 0), App.Vector(-4.267628, -1.384615, 0)], [4, 1, 1, 1, 1, 1, 1, 1, 4], [0, 0.000152431, 0.000295284, 0.000428704, 0.000556058, 0.000677197, 0.000795562, 0.00091264, 0.0010307], False, 3, [1, 1, 1, 1, 1, 1, 1, 1, 1, 1, 1], False),
    Part.LineSegment(App.Vector(-3.419872, -0.871795, 0), App.Vector(-2.602564, -1.250801, 0)),
    Part.BSplineCurve([App.Vector(-4.229968, -2.102564, 0), App.Vector(-4.185612, -2.101972, 0), App.Vector(-4.098397, -2.100808, 0), App.Vector(-3.969743, -2.090917, 0), App.Vector(-3.845351, -2.075018, 0), App.Vector(-3.72518, -2.05273, 0), App.Vector(-3.609335, -2.02376, 0), App.Vector(-3.49791, -1.988694, 0), App.Vector(-3.390912, -1.946758, 0), App.Vector(-3.287897, -1.898741, 0), App.Vector(-3.189074, -1.843283, 0), App.Vector(-3.094207, -1.780357, 0), App.Vector(-3.00275, -1.710695, 0), App.Vector(-2.914957, -1.633278, 0), App.Vector(-2.83122, -1.5484, 0), App.Vector(-2.750591, -1.456448, 0), App.Vector(-2.673536, -1.357329, 0), App.Vector(-2.626435, -1.286632, 0), App.Vector(-2.602564, -1.250801, 0)], [4, 1, 1, 1, 1, 1, 1, 1, 1, 1, 1, 1, 1, 1, 1, 1, 4], [0, 0.000133051, 0.000261617, 0.000386845, 0.000509113, 0.000628049, 0.000744874, 0.000859301, 0.000972574, 0.00108558, 0.001198921, 0.001313829, 0.001430214, 0.001549766, 0.001671276, 0.001796931, 0.00192606], False, 3, [1, 1, 1, 1, 1, 1, 1, 1, 1, 1, 1, 1, 1, 1, 1, 1, 1, 1, 1], False),
    Part.BSplineCurve([App.Vector(-5.782051, -0.963942, 0), App.Vector(-5.781022, -1.004376, 0), App.Vector(-5.778997, -1.083938, 0), App.Vector(-5.756888, -1.200301, 0), App.Vector(-5.723611, -1.311228, 0), App.Vector(-5.676647, -1.417064, 0), App.Vector(-5.614791, -1.516489, 0), App.Vector(-5.541116, -1.611765, 0), App.Vector(-5.452358, -1.700132, 0), App.Vector(-5.352092, -1.782854, 0), App.Vector(-5.240769, -1.858022, 0), App.Vector(-5.120354, -1.923824, 0), App.Vector(-4.991757, -1.979028, 0), App.Vector(-4.855007, -2.024195, 0), App.Vector(-4.710201, -2.058939, 0), App.Vector(-4.557375, -2.084668, 0), App.Vector(-4.396422, -2.100144, 0), App.Vector(-4.28636, -2.101744, 0), App.Vector(-4.229968, -2.102564, 0)], [4, 1, 1, 1, 1, 1, 1, 1, 1, 1, 1, 1, 1, 1, 1, 1, 4], [0, 0.000121163, 0.000238414, 0.000353998, 0.000468062, 0.000584598, 0.000704491, 0.000828576, 0.000959487, 0.001093943, 0.001230922, 0.001370541, 0.001513198, 0.001662454, 0.001816842, 0.00197782, 0.002146959], False, 3, [1, 1, 1, 1, 1, 1, 1, 1, 1, 1, 1, 1, 1, 1, 1, 1, 1, 1, 1], False),
    Part.BSplineCurve([App.Vector(-5.244391, -0.046474, 0), App.Vector(-5.290132, -0.084525, 0), App.Vector(-5.37727, -0.157012, 0), App.Vector(-5.492092, -0.270823, 0), App.Vector(-5.586693, -0.381706, 0), App.Vector(-5.660531, -0.492118, 0), App.Vector(-5.715201, -0.604162, 0), App.Vector(-5.754635, -0.719469, 0), App.Vector(-5.777062, -0.840209, 0), App.Vector(-5.780378, -0.922455, 0), App.Vector(-5.782051, -0.963942, 0)], [4, 1, 1, 1, 1, 1, 1, 1, 4], [0, 0.000178429, 0.000339909, 0.000484362, 0.000615037, 0.000737237, 0.000857344, 0.000979612, 0.001104069], False, 3, [1, 1, 1, 1, 1, 1, 1, 1, 1, 1, 1], False),
    Part.BSplineCurve([App.Vector(-4.575321, 0.415064, 0), App.Vector(-4.619152, 0.385994, 0), App.Vector(-4.702125, 0.330965, 0), App.Vector(-4.819604, 0.252105, 0), App.Vector(-4.923396, 0.181701, 0), App.Vector(-5.014267, 0.120206, 0), App.Vector(-5.090932, 0.06641, 0), App.Vector(-5.154564, 0.021727, 0), App.Vector(-5.204203, -0.014954, 0), App.Vector(-5.23241, -0.037077, 0), App.Vector(-5.244391, -0.046474, 0)], [4, 1, 1, 1, 1, 1, 1, 1, 4], [0, 0.000157787, 0.000298686, 0.000424474, 0.000534042, 0.000627847, 0.000705439, 0.000767299, 0.000812979], False, 3, [1, 1, 1, 1, 1, 1, 1, 1, 1, 1, 1], False),
    Part.BSplineCurve([App.Vector(-3.86859, 0.93109, 0), App.Vector(-3.880729, 0.919439, 0), App.Vector(-3.90889, 0.892412, 0), App.Vector(-3.961284, 0.850627, 0), App.Vector(-4.02654, 0.7978, 0), App.Vector(-4.108668, 0.738982, 0), App.Vector(-4.203758, 0.669232, 0), App.Vector(-4.314989, 0.593066, 0), App.Vector(-4.439476, 0.50593, 0), App.Vector(-4.528461, 0.446409, 0), App.Vector(-4.575321, 0.415064, 0)], [4, 1, 1, 1, 1, 1, 1, 1, 4], [0, 0.000050455, 0.000117039, 0.000200883, 0.00030233, 0.000419977, 0.000554678, 0.00070671, 0.000875834], False, 3, [1, 1, 1, 1, 1, 1, 1, 1, 1, 1, 1], False),
    Part.BSplineCurve([App.Vector(-3.782051, 1.122596, 0), App.Vector(-3.783221, 1.105915, 0), App.Vector(-3.785594, 1.07207, 0), App.Vector(-3.80254, 1.02233, 0), App.Vector(-3.830318, 0.974368, 0), App.Vector(-3.855491, 0.945902, 0), App.Vector(-3.86859, 0.93109, 0)], [4, 1, 1, 1, 4], [0, 0.000049995, 0.000101433, 0.000155997, 0.000215194], False, 3, [1, 1, 1, 1, 1, 1, 1], False),
    Part.BSplineCurve([App.Vector(-4.209936, 1.384615, 0), App.Vector(-4.179954, 1.383825, 0), App.Vector(-4.122238, 1.382303, 0), App.Vector(-4.039816, 1.367041, 0), App.Vector(-3.965988, 1.341403, 0), App.Vector(-3.902081, 1.306593, 0), App.Vector(-3.850545, 1.265331, 0), App.Vector(-3.810619, 1.221744, 0), App.Vector(-3.786377, 1.173148, 0), App.Vector(-3.783465, 1.139121, 0), App.Vector(-3.782051, 1.122596, 0)], [4, 1, 1, 1, 1, 1, 1, 1, 4], [0, 0.000089872, 0.000173009, 0.000250303, 0.000323461, 0.00039016, 0.000447523, 0.000499853, 0.00054926], False, 3, [1, 1, 1, 1, 1, 1, 1, 1, 1, 1, 1], False),
    Part.BSplineCurve([App.Vector(-4.970353, 0.974359, 0), App.Vector(-4.939567, 1.006877, 0), App.Vector(-4.880026, 1.069767, 0), App.Vector(-4.785872, 1.153604, 0), App.Vector(-4.691265, 1.224442, 0), App.Vector(-4.596281, 1.282919, 0), App.Vector(-4.500413, 1.32837, 0), App.Vector(-4.403845, 1.36052, 0), App.Vector(-4.306938, 1.380847, 0), App.Vector(-4.242082, 1.383366, 0), App.Vector(-4.209936, 1.384615, 0)], [4, 1, 1, 1, 1, 1, 1, 1, 4], [0, 0.000134293, 0.000259726, 0.000377675, 0.000488438, 0.000593821, 0.000695176, 0.000793234, 0.000889602], False, 3, [1, 1, 1, 1, 1, 1, 1, 1, 1, 1, 1], False),
], False)
sketch4.addConstraint([
    Sketcher.Constraint("Block", 3),
    Sketcher.Constraint("Block", 4),
    Sketcher.Constraint("Block", 6),
    Sketcher.Constraint("Block", 7),
    Sketcher.Constraint("Block", 8),
    Sketcher.Constraint("Block", 19),
    Sketcher.Constraint("Block", 20),
    Sketcher.Constraint("Block", 23),
    Sketcher.Constraint("Block", 24),
    Sketcher.Constraint("Block", 27),
    Sketcher.Constraint("Block", 28),
    Sketcher.Constraint("Block", 29),
    Sketcher.Constraint("Block", 30),
    Sketcher.Constraint("Block", 31),
    Sketcher.Constraint("Block", 32),
    Sketcher.Constraint("Block", 34),
    Sketcher.Constraint("Block", 35),
    Sketcher.Constraint("Block", 36),
    Sketcher.Constraint("Block", 37),
    Sketcher.Constraint("Block", 38),
    Sketcher.Constraint("Block", 39),
    Sketcher.Constraint("Block", 40),
    Sketcher.Constraint("Block", 41),
    Sketcher.Constraint("Coincident", 0, 2, 1, 1),
    Sketcher.Constraint("Coincident", 1, 2, 2, 1),
    Sketcher.Constraint("Coincident", 2, 2, 3, 2),
    Sketcher.Constraint("Coincident", 4, 1, 0, 1),
    Sketcher.Constraint("Coincident", 5, 2, 6, 2),
    Sketcher.Constraint("Coincident", 8, 1, 9, 1),
    Sketcher.Constraint("Coincident", 9, 2, 10, 1),
    Sketcher.Constraint("Coincident", 10, 2, 5, 1),
    Sketcher.Constraint("Coincident", 11, 2, 12, 1),
    Sketcher.Constraint("Coincident", 12, 2, 13, 1),
    Sketcher.Constraint("Coincident", 13, 2, 14, 1),
    Sketcher.Constraint("Coincident", 14, 2, 15, 1),
    Sketcher.Constraint("Coincident", 15, 2, 16, 1),
    Sketcher.Constraint("Coincident", 16, 2, 17, 1),
    Sketcher.Constraint("Coincident", 17, 2, 18, 1),
    Sketcher.Constraint("Coincident", 18, 2, 19, 2),
    Sketcher.Constraint("Coincident", 20, 1, 11, 1),
    Sketcher.Constraint("Coincident", 21, 2, 22, 1),
    Sketcher.Constraint("Coincident", 22, 2, 23, 2),
    Sketcher.Constraint("Coincident", 24, 1, 25, 1),
    Sketcher.Constraint("Coincident", 25, 2, 21, 1),
    Sketcher.Constraint("Coincident", 26, 2, 27, 2),
    Sketcher.Constraint("Coincident", 32, 1, 33, 1),
    Sketcher.Constraint("Coincident", 33, 2, 34, 2),
    Sketcher.Constraint("Coincident", 41, 1, 26, 1),
    Sketcher.Constraint("Horizontal", 0),
    Sketcher.Constraint("Vertical", 1),
    Sketcher.Constraint("Horizontal", 2),
    Sketcher.Constraint("Horizontal", 5),
    Sketcher.Constraint("Horizontal", 9),
    Sketcher.Constraint("Vertical", 10),
    Sketcher.Constraint("Horizontal", 11),
    Sketcher.Constraint("Vertical", 12),
    Sketcher.Constraint("Horizontal", 13),
    Sketcher.Constraint("Vertical", 14),
    Sketcher.Constraint("Horizontal", 15),
    Sketcher.Constraint("Horizontal", 17),
    Sketcher.Constraint("Vertical", 21),
    Sketcher.Constraint("Horizontal", 22),
    Sketcher.Constraint("Horizontal", 25),
    Sketcher.Constraint("DistanceY", 12, 2, 12, 1, Q("4 mm")),
    Sketcher.Constraint("DistanceY", 16, 2, -1, 1, Q("2 mm")),
    Sketcher.Constraint("DistanceX", 18, 2, 14, 2, Q("1.25 mm")),
    Sketcher.Constraint("DistanceX", 18, 2, 21, 2, Q("1.25 mm")),
    Sketcher.Constraint("DistanceX", 11, 1, 11, 2, Q("1.063301 mm")),
    Sketcher.Constraint("DistanceX", 2, 2, 2, 1, Q("1.169872 mm")),
    Sketcher.Constraint("DistanceX", 15, 2, 15, 1, Q("0.267628 mm")),
    Sketcher.Constraint("DistanceY", 14, 1, 14, 2, Q("1.74359 mm")),
    Sketcher.Constraint("Distance", 18, Q("2.176729 mm")),
    Sketcher.Constraint("DistanceX", 5, 2, 5, 1, Q("0.346154 mm")),
    Sketcher.Constraint("DistanceX", 17, 2, 17, 1, Q("1.036058 mm")),
])
pocket2 = body2.newObject("PartDesign::Pocket", "Pocket001")
pocket2.Profile = sketch4
pocket2.Length = 0.4
pocket2.Reversed = True
doc.recompute()

fillet = body2.newObject("PartDesign::Fillet", "Fillet")
fillet.Base = (pocket2, edges_at(pocket2, [(-8, 0, -7)]))
fillet.Radius = 1

sketch5 = body2.newObject("Sketcher::SketchObject", "Sketch004")
sketch5.AttachmentSupport = (doc.getObject("XY_Plane001"), [""])
sketch5.MapMode = "FlatFace"
sketch5.AttachmentOffset = App.Placement(App.Vector(0, 0, -6), App.Rotation())
add_polygon(sketch5, [(-1, 4.5), (-1, 3), (1, 3), (1, 4.5)])
sketch5.addConstraint([
    Sketcher.Constraint("Vertical", 0),
    Sketcher.Constraint("Horizontal", 1),
    Sketcher.Constraint("Vertical", 2),
    Sketcher.Constraint("Horizontal", 3),
    Sketcher.Constraint("DistanceX", 1, 1, 1, 2, Q("2 mm")),
    Sketcher.Constraint("DistanceY", 0, 2, 0, 1, Q("1.5 mm")),
    Sketcher.Constraint("DistanceX", 0, 2, -1, 1, Q("1 mm")),
    Sketcher.Constraint("DistanceY", -1, 1, 0, 2, Q("3 mm")),
])
pad1 = body2.newObject("PartDesign::Pad", "Pad")
pad1.Profile = sketch5
pad1.Length = 3

doc.recompute()
